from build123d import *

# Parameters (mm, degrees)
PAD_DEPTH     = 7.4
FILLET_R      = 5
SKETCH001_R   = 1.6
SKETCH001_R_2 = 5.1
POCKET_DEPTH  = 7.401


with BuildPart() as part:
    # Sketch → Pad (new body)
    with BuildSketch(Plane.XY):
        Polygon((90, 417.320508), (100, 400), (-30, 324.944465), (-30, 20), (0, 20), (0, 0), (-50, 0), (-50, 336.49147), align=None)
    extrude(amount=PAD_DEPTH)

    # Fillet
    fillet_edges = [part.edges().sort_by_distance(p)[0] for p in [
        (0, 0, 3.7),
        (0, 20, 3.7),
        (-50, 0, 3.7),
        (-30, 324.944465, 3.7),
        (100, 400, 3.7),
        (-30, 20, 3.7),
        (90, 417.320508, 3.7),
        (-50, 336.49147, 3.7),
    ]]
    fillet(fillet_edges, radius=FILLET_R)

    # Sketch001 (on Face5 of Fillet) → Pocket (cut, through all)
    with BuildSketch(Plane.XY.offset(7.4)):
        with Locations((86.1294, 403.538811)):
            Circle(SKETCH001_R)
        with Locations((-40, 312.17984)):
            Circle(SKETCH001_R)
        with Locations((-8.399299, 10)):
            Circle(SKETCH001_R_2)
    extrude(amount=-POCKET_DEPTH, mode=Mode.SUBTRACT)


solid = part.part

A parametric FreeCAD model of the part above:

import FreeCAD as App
import Part
import Sketcher

V = App.Vector
Q = App.Units.Quantity


def edges_at(feature, points):
    """Names of the edges that pass closest to the given points."""
    edges = feature.Shape.Edges
    near = lambda p: min(range(len(edges)), key=lambda i: edges[i].distToShape(Part.Vertex(*p))[0])
    return sorted({f"Edge{near(p) + 1}" for p in points})


def add_polygon(sketch, points):
    """Adds a closed chain of lines whose ends are joined by coincident constraints."""
    first, n = sketch.GeometryCount, len(points)
    for a, b in zip(points, points[1:] + points[:1]):
        sketch.addGeometry(Part.LineSegment(App.Vector(*a, 0), App.Vector(*b, 0)), False)
    for i in range(n):
        sketch.addConstraint(Sketcher.Constraint("Coincident", first + i, 2, first + (i + 1) % n, 1))

doc = App.newDocument("Part")
body = doc.addObject("PartDesign::Body", "Body")

sketch1 = doc.addObject("Sketcher::SketchObject", "Sketch")
body.addObject(sketch1)
sketch1.AttachmentSupport = (doc.XY_Plane, [""])
sketch1.MapMode = "FlatFace"
add_polygon(sketch1, [(100, 400), (90, 417.320508), (-50, 336.49147), (-50, 0), (0, 0), (0, 20), (-30, 20), (-30, 324.944465)])
sketch1.addConstraint([
    Sketcher.Constraint("Vertical", 2),
    Sketcher.Constraint("Horizontal", 3),
    Sketcher.Constraint("Vertical", 4),
    Sketcher.Constraint("Horizontal", 5),
    Sketcher.Constraint("Vertical", 6),
    Sketcher.Constraint("Coincident", 3, 2, -1, 1),
    Sketcher.Constraint("Perpendicular", 0, 1),
    Sketcher.Constraint("Parallel", 1, 7),
    Sketcher.Constraint("DistanceX", 3, 1, 3, 2, Q("50 mm")),
    Sketcher.Constraint("DistanceX", 5, 2, 5, 1, Q("30 mm")),
    Sketcher.Constraint("DistanceY", 4, 1, 4, 2, Q("20 mm")),
    Sketcher.Constraint("Angle", 0, Q("120 deg")),
    Sketcher.Constraint("Distance", 0, Q("20 mm")),
    Sketcher.Constraint("DistanceX", -1, 1, 0, 2, Q("90 mm")),
    Sketcher.Constraint("DistanceY", -1, 1, 7, 2, Q("400 mm")),
])
pad1 = doc.addObject("PartDesign::Pad", "Pad")
body.addObject(pad1)
pad1.Profile = sketch1
pad1.Length = 7.4
doc.recompute()

fillet = doc.addObject("PartDesign::Fillet", "Fillet")
body.addObject(fillet)
fillet.Base = (pad1, edges_at(pad1, [
    (0, 0, 3.7),
    (0, 20, 3.7),
    (-50, 0, 3.7),
    (-30, 324.944, 3.7),
    (100, 400, 3.7),
    (-30, 20, 3.7),
    (90, 417.321, 3.7),
    (-50, 336.491, 3.7),
]))
fillet.Radius = 5

sketch2 = doc.addObject("Sketcher::SketchObject", "Sketch001")
body.addObject(sketch2)
sketch2.AttachmentSupport = (doc.XY_Plane, [""])
sketch2.MapMode = "FlatFace"
sketch2.AttachmentOffset = App.Placement(V(0, 0, 7.4), App.Rotation())
sketch2.addGeometry([
    Part.Circle(V(86.1294, 403.538811, 0), V(0, 0, 1), 1.6),
    Part.Circle(V(-40, 312.17984, 0), V(0, 0, 1), 1.6),
    Part.Circle(V(-8.399299, 10, 0), V(0, 0, 1), 5.1),
], False)
sketch2.addConstraint([
    Sketcher.Constraint("Equal", 0, 1),
    Sketcher.Constraint("Diameter", 0, Q("3.2 mm")),
    Sketcher.Constraint("Diameter", 2, Q("10.2 mm")),
    Sketcher.Constraint("DistanceX", 1, 3, -1, 1, Q("40 mm")),
    Sketcher.Constraint("DistanceY", -1, 1, 2, 3, Q("10 mm")),
    Sketcher.Constraint("DistanceX", -1, 1, 0, 3, Q("86.1294 mm")),
    Sketcher.Constraint("DistanceX", 2, 3, -1, 1, Q("8.399299 mm")),
    Sketcher.Constraint("DistanceY", -1, 1, 0, 3, Q("403.538811 mm")),
    Sketcher.Constraint("DistanceY", -1, 1, 1, 3, Q("312.17984 mm")),
])
pocket1 = doc.addObject("PartDesign::Pocket", "Pocket")
body.addObject(pocket1)
pocket1.Profile = sketch2
pocket1.Type = "ThroughAll"

doc.recompute()
